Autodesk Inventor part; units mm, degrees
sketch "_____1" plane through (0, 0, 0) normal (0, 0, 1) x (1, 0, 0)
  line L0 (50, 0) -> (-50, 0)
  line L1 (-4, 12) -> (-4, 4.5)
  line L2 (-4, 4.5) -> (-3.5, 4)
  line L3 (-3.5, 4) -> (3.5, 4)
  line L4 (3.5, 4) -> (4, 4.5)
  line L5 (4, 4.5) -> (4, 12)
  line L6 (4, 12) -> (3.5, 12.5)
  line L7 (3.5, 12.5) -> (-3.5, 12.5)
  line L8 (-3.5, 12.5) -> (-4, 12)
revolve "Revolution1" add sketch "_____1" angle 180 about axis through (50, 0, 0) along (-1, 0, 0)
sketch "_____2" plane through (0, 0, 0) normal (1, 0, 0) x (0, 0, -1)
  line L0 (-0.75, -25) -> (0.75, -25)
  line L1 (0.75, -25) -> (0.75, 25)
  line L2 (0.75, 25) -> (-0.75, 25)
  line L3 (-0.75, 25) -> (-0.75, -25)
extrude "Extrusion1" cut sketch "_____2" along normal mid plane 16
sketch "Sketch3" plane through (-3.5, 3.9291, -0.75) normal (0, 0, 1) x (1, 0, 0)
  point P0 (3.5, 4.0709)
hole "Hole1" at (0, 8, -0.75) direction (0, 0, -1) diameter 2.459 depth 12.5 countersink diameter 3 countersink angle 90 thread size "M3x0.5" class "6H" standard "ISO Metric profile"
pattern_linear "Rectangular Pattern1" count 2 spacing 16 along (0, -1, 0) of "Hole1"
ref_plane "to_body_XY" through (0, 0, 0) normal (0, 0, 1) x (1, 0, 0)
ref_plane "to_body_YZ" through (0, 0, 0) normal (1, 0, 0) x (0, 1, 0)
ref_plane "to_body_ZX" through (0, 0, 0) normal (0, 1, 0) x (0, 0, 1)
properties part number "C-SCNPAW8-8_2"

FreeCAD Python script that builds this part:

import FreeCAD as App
import Part
import Sketcher


def add_polygon(sketch, points):
    """Adds a closed chain of lines whose ends are joined by coincident constraints."""
    first, n = sketch.GeometryCount, len(points)
    for a, b in zip(points, points[1:] + points[:1]):
        sketch.addGeometry(Part.LineSegment(App.Vector(*a, 0), App.Vector(*b, 0)), False)
    for i in range(n):
        sketch.addConstraint(Sketcher.Constraint("Coincident", first + i, 2, first + (i + 1) % n, 1))

doc = App.newDocument("Part")
body = doc.addObject("PartDesign::Body", "Body")

# Sketch on XY plane
sketch1 = body.newObject("Sketcher::SketchObject", "Sketch")
sketch1.AttachmentSupport = (doc.getObject("XY_Plane"), [""])
sketch1.MapMode = "FlatFace"
add_polygon(sketch1, [(-3.5, 12.5), (-4, 12), (-4, 4.5), (-3.5, 4), (3.5, 4), (4, 4.5), (4, 12), (3.5, 12.5)])  # lines 0-7
sketch1.addConstraint([
    Sketcher.Constraint("Vertical", 1),
    Sketcher.Constraint("Horizontal", 3),
    Sketcher.Constraint("Vertical", 5),
    Sketcher.Constraint("Horizontal", 7),
    Sketcher.Constraint("Symmetric", 1, 2, 4, 2, -2),
    Sketcher.Constraint("Perpendicular", 0, 2),
    Sketcher.Constraint("Perpendicular", 2, 4),
    Sketcher.Constraint("Perpendicular", 4, 6),
    Sketcher.Constraint("Horizontal", 0, 2, 5, 2),
    Sketcher.Constraint("Vertical", 3, 2, 6, 2),
    Sketcher.Constraint("Vertical", 2, 2, 7, 2),
    Sketcher.Constraint("DistanceX", 3, 1, 3, 2, 7.0),
    Sketcher.Constraint("DistanceY", 1, 2, 1, 1, 7.5),
    Sketcher.Constraint("DistanceX", 0, 2, -1, 1, 4.0),
    Sketcher.Constraint("DistanceY", -1, 1, 0, 2, 12.0),
])
revolution = body.newObject("PartDesign::Revolution", "Revolution")
revolution.Profile = sketch1
revolution.ReferenceAxis = (sketch1, ["H_Axis"])
revolution.Angle = 180
revolution.Reversed = True

# Sketch on YZ plane
sketch2 = body.newObject("Sketcher::SketchObject", "Sketch001")
sketch2.AttachmentSupport = (doc.getObject("YZ_Plane"), [""])
sketch2.MapMode = "FlatFace"
add_polygon(sketch2, [(25, 0.75), (-25, 0.75), (-25, -0.75), (25, -0.75)])  # lines 0-3
sketch2.addConstraint([
    Sketcher.Constraint("Horizontal", 0),
    Sketcher.Constraint("Vertical", 1),
    Sketcher.Constraint("Horizontal", 2),
    Sketcher.Constraint("Vertical", 3),
    Sketcher.Constraint("Symmetric", 0, 2, 2, 2, -1, 1),
    Sketcher.Constraint("DistanceX", 0, 2, 0, 1, 50.0),
    Sketcher.Constraint("DistanceY", 1, 2, 1, 1, 1.5),
])
pocket1 = body.newObject("PartDesign::Pocket", "Pocket")
pocket1.Profile = sketch2
pocket1.Length = 16
pocket1.Midplane = True

# Sketch on XY plane
sketch3 = body.newObject("Sketcher::SketchObject", "Sketch002")
sketch3.AttachmentSupport = (doc.getObject("XY_Plane"), [""])
sketch3.MapMode = "FlatFace"
sketch3.AttachmentOffset = App.Placement(App.Vector(0, 0, -0.75), App.Rotation())
sketch3.addGeometry(Part.Circle(App.Vector(0, 8, 0), App.Vector(0, 0, 1), 1.2295), False)
sketch3.addConstraint([
    Sketcher.Constraint("PointOnObject", 0, 3, -2),
    Sketcher.Constraint("Diameter", 0, 2.459),
    Sketcher.Constraint("DistanceY", -1, 1, 0, 3, 8.0),
])
doc.recompute()
hole = body.newObject("PartDesign::Hole", "Hole")
hole.Profile = sketch3
hole.ThreadType = "None"
hole.Diameter = 2.459
hole.DepthType = "Dimension"
hole.Depth = 12.5
hole.DrillPoint = "Flat"
hole.HoleCutType = "Countersink"
hole.HoleCutDiameter = 3
hole.HoleCutCountersinkAngle = 90
doc.recompute()

linearpattern = body.newObject("PartDesign::LinearPattern", "LinearPattern")
linearpattern.Originals = [hole]
linearpattern.Direction = (doc.getObject("Y_Axis"), [""])
linearpattern.Mode = "offset"
linearpattern.Offset = 16
linearpattern.Occurrences = 2
linearpattern.Reversed = True
body.Tip = linearpattern

doc.recompute()
